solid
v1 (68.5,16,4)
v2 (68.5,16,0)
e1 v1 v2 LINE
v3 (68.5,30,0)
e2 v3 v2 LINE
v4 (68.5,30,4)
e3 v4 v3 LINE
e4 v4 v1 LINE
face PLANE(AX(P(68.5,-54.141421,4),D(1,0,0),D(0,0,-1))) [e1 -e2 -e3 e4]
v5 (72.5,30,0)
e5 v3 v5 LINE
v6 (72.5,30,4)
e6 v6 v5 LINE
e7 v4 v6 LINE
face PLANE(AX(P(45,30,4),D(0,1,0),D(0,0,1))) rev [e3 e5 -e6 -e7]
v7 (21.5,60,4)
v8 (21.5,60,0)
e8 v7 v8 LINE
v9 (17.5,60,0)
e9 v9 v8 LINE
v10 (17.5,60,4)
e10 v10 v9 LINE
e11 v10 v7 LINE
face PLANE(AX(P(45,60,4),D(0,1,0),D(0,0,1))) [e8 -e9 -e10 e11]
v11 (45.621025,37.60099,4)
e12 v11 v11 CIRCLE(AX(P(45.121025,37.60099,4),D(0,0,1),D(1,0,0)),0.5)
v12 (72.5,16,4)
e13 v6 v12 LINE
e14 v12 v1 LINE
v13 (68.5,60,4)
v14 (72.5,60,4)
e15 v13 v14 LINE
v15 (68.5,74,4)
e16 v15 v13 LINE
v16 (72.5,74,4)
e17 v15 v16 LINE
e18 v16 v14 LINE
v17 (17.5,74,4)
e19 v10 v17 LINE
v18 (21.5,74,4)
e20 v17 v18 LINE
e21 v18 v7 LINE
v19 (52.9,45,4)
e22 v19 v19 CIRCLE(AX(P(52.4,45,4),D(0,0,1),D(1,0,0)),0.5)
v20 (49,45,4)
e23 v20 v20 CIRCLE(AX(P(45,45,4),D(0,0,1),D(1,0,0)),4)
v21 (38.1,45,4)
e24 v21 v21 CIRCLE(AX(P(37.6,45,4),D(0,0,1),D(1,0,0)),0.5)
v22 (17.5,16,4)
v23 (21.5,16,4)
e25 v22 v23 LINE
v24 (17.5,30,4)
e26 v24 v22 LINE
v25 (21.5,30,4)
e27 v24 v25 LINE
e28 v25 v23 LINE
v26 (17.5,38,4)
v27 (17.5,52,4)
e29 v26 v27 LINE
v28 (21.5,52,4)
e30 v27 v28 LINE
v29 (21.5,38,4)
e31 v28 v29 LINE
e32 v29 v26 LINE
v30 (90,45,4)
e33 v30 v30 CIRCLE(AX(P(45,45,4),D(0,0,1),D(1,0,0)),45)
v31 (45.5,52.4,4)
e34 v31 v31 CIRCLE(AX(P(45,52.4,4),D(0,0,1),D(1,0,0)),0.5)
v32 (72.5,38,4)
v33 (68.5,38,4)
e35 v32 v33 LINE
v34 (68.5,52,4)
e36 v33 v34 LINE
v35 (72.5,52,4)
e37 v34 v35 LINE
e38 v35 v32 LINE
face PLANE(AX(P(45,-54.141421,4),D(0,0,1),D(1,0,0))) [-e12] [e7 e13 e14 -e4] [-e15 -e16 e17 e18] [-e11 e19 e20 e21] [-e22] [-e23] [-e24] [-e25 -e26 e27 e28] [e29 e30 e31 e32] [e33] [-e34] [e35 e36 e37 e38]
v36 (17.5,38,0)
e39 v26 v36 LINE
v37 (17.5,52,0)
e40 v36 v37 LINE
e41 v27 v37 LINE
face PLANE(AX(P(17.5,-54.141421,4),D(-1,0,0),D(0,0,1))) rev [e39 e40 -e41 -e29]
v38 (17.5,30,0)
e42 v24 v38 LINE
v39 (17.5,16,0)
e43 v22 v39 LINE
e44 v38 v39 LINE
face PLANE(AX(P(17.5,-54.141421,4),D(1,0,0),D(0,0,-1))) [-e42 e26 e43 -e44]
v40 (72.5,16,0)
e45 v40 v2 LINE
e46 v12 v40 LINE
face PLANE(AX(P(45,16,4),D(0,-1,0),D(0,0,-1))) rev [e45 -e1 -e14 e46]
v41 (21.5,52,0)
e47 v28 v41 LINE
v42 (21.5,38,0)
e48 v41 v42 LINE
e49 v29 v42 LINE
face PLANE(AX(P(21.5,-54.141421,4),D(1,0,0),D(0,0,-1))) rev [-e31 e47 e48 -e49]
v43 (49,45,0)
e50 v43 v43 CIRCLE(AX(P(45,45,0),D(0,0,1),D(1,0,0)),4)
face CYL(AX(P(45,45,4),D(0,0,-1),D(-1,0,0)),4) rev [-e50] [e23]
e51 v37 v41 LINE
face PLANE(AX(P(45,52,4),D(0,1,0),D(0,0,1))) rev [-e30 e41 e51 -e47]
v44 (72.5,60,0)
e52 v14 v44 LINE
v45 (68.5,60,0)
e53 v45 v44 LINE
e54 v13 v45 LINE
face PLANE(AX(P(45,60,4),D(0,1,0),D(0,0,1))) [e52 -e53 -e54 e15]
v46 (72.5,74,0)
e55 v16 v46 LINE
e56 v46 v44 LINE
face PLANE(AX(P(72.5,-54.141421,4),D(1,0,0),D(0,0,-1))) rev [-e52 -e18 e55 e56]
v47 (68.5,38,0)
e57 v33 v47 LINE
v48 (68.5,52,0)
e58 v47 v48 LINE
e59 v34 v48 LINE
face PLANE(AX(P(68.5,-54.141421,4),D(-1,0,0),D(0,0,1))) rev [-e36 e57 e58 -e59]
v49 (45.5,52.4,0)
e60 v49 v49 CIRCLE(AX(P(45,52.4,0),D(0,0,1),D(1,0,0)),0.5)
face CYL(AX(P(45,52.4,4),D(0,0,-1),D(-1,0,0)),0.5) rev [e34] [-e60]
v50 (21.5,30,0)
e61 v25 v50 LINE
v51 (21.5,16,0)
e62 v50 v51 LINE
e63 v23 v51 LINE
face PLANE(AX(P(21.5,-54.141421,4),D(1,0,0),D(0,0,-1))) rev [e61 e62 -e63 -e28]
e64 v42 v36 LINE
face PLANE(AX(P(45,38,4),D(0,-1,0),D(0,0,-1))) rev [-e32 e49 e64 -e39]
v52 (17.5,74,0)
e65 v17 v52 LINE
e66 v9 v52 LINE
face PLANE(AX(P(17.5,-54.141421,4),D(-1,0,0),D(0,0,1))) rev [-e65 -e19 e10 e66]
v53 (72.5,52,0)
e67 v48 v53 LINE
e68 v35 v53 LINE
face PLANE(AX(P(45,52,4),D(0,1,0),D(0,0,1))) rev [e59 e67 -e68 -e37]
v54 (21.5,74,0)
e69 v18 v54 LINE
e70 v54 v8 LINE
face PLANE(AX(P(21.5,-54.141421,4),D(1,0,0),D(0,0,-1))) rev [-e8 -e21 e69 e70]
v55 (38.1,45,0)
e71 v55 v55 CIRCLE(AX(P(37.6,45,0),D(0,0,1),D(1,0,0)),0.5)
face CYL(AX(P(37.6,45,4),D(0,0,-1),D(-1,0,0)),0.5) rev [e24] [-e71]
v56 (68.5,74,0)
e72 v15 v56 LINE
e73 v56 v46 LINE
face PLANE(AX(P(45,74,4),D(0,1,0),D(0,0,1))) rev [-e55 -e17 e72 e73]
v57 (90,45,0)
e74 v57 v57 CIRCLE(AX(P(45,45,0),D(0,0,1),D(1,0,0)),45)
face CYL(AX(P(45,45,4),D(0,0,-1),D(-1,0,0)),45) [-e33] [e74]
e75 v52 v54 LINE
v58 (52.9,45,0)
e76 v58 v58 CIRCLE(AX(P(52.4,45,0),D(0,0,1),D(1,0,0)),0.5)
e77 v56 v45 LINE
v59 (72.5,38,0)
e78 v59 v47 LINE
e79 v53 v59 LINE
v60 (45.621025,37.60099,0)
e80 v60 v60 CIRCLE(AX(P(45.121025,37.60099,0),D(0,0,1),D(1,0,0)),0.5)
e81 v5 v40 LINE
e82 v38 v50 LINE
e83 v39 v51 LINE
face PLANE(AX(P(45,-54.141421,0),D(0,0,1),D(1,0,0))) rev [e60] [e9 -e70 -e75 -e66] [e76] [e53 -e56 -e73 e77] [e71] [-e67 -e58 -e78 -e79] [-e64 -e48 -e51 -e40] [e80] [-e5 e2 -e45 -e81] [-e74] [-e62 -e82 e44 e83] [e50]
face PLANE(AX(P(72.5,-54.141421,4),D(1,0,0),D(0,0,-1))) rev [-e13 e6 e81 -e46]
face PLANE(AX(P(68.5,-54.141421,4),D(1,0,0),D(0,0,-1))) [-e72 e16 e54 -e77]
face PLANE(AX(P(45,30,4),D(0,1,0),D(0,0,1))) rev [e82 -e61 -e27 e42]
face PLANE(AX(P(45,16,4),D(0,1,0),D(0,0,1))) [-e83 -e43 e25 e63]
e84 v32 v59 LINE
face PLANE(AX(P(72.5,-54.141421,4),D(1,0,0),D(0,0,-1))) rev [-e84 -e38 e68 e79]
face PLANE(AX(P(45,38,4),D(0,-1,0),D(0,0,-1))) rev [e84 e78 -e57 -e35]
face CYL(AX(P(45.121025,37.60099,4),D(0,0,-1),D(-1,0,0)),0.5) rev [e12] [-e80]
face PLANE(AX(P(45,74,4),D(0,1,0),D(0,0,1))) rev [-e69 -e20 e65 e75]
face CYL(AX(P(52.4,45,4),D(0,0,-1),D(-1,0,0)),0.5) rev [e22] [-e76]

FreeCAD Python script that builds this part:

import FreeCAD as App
import Part
import Sketcher
from FreeCAD import Vector

doc = App.newDocument("Part")
params = doc.addObject("Spreadsheet::Sheet", "Params")
for row, (alias, value) in enumerate([
    ("sketch1_diameter", "90 mm"),
    ("sketch1_diameter2", "1 mm"),
    ("sketch1_diameter3", "8 mm"),
    ("sketch1_width", "4 mm"),
    ("sketch1_height", "14 mm"),
    ("pad1_length", "4 mm"),
], start=1):
    params.set(f"A{row}", alias)
    params.set(f"B{row}", "=" + value)
    params.setAlias(f"B{row}", alias)

body = doc.addObject("PartDesign::Body", "Body")

# Sketch on XY plane
sketch1 = body.newObject("Sketcher::SketchObject", "Sketch")
sketch1.AttachmentSupport = (doc.getObject("XY_Plane"), [""])
sketch1.MapMode = "FlatFace"
sketch1.addGeometry([
    Part.Circle(Vector(45, 45, 0), Vector(0, 0, 1), 45),  # 0
    Part.LineSegment(Vector(21.5, 16, 0), Vector(17.5, 16, 0)),  # 1
    Part.LineSegment(Vector(17.5, 16, 0), Vector(17.5, 30, 0)),  # 2
    Part.LineSegment(Vector(17.5, 30, 0), Vector(21.5, 30, 0)),  # 3
    Part.LineSegment(Vector(21.5, 30, 0), Vector(21.5, 16, 0)),  # 4
    Part.LineSegment(Vector(72.5, 16, 0), Vector(68.5, 16, 0)),  # 5
    Part.LineSegment(Vector(68.5, 16, 0), Vector(68.5, 30, 0)),  # 6
    Part.LineSegment(Vector(68.5, 30, 0), Vector(72.5, 30, 0)),  # 7
    Part.LineSegment(Vector(72.5, 30, 0), Vector(72.5, 16, 0)),  # 8
    Part.Circle(Vector(45.121025, 37.60099, 0), Vector(0, 0, 1), 0.5),  # 9
    Part.LineSegment(Vector(21.5, 38, 0), Vector(17.5, 38, 0)),  # 10
    Part.LineSegment(Vector(17.5, 38, 0), Vector(17.5, 52, 0)),  # 11
    Part.LineSegment(Vector(17.5, 52, 0), Vector(21.5, 52, 0)),  # 12
    Part.LineSegment(Vector(21.5, 52, 0), Vector(21.5, 38, 0)),  # 13
    Part.Circle(Vector(37.6, 45, 0), Vector(0, 0, 1), 0.5),  # 14
    Part.LineSegment(Vector(21.5, 60, 0), Vector(17.5, 60, 0)),  # 15
    Part.LineSegment(Vector(17.5, 60, 0), Vector(17.5, 74, 0)),  # 16
    Part.LineSegment(Vector(17.5, 74, 0), Vector(21.5, 74, 0)),  # 17
    Part.LineSegment(Vector(21.5, 74, 0), Vector(21.5, 60, 0)),  # 18
    Part.Circle(Vector(45, 45, 0), Vector(0, 0, 1), 4),  # 19
    Part.Circle(Vector(52.4, 45, 0), Vector(0, 0, 1), 0.5),  # 20
    Part.Circle(Vector(45, 52.4, 0), Vector(0, 0, 1), 0.5),  # 21
    Part.LineSegment(Vector(72.5, 38, 0), Vector(68.5, 38, 0)),  # 22
    Part.LineSegment(Vector(68.5, 38, 0), Vector(68.5, 52, 0)),  # 23
    Part.LineSegment(Vector(68.5, 52, 0), Vector(72.5, 52, 0)),  # 24
    Part.LineSegment(Vector(72.5, 52, 0), Vector(72.5, 38, 0)),  # 25
    Part.LineSegment(Vector(72.5, 60, 0), Vector(68.5, 60, 0)),  # 26
    Part.LineSegment(Vector(68.5, 60, 0), Vector(68.5, 74, 0)),  # 27
    Part.LineSegment(Vector(68.5, 74, 0), Vector(72.5, 74, 0)),  # 28
    Part.LineSegment(Vector(72.5, 74, 0), Vector(72.5, 60, 0)),  # 29
], False)
sketch1.addConstraint([
    Sketcher.Constraint("Coincident", 1, 2, 2, 1),
    Sketcher.Constraint("Coincident", 2, 2, 3, 1),
    Sketcher.Constraint("Coincident", 3, 2, 4, 1),
    Sketcher.Constraint("Coincident", 4, 2, 1, 1),
    Sketcher.Constraint("Coincident", 5, 2, 6, 1),
    Sketcher.Constraint("Coincident", 6, 2, 7, 1),
    Sketcher.Constraint("Coincident", 7, 2, 8, 1),
    Sketcher.Constraint("Coincident", 8, 2, 5, 1),
    Sketcher.Constraint("Coincident", 10, 2, 11, 1),
    Sketcher.Constraint("Coincident", 11, 2, 12, 1),
    Sketcher.Constraint("Coincident", 12, 2, 13, 1),
    Sketcher.Constraint("Coincident", 13, 2, 10, 1),
    Sketcher.Constraint("Coincident", 15, 2, 16, 1),
    Sketcher.Constraint("Coincident", 16, 2, 17, 1),
    Sketcher.Constraint("Coincident", 17, 2, 18, 1),
    Sketcher.Constraint("Coincident", 18, 2, 15, 1),
    Sketcher.Constraint("Coincident", 22, 2, 23, 1),
    Sketcher.Constraint("Coincident", 23, 2, 24, 1),
    Sketcher.Constraint("Coincident", 24, 2, 25, 1),
    Sketcher.Constraint("Coincident", 25, 2, 22, 1),
    Sketcher.Constraint("Coincident", 26, 2, 27, 1),
    Sketcher.Constraint("Coincident", 27, 2, 28, 1),
    Sketcher.Constraint("Coincident", 28, 2, 29, 1),
    Sketcher.Constraint("Coincident", 29, 2, 26, 1),
    Sketcher.Constraint("Horizontal", 1),
    Sketcher.Constraint("Vertical", 2),
    Sketcher.Constraint("Horizontal", 3),
    Sketcher.Constraint("Vertical", 4),
    Sketcher.Constraint("Horizontal", 5),
    Sketcher.Constraint("Vertical", 6),
    Sketcher.Constraint("Horizontal", 7),
    Sketcher.Constraint("Vertical", 8),
    Sketcher.Constraint("Horizontal", 10),
    Sketcher.Constraint("Vertical", 11),
    Sketcher.Constraint("Horizontal", 12),
    Sketcher.Constraint("Vertical", 13),
    Sketcher.Constraint("Horizontal", 15),
    Sketcher.Constraint("Vertical", 16),
    Sketcher.Constraint("Horizontal", 17),
    Sketcher.Constraint("Vertical", 18),
    Sketcher.Constraint("Horizontal", 22),
    Sketcher.Constraint("Vertical", 23),
    Sketcher.Constraint("Horizontal", 24),
    Sketcher.Constraint("Vertical", 25),
    Sketcher.Constraint("Horizontal", 26),
    Sketcher.Constraint("Vertical", 27),
    Sketcher.Constraint("Horizontal", 28),
    Sketcher.Constraint("Vertical", 29),
    Sketcher.Constraint("Coincident", 19, 3, 0, 3),
    Sketcher.Constraint("Equal", 9, 14),
    Sketcher.Constraint("Equal", 14, 20),
    Sketcher.Constraint("Equal", 20, 21),
    Sketcher.Constraint("Horizontal", 0, 3, 14, 3),
    Sketcher.Constraint("Horizontal", 19, 3, 20, 3),
    Sketcher.Constraint("Horizontal", 4, 2, 5, 2),
    Sketcher.Constraint("Horizontal", 3, 2, 6, 2),
    Sketcher.Constraint("Horizontal", 13, 2, 22, 2),
    Sketcher.Constraint("Horizontal", 12, 2, 23, 2),
    Sketcher.Constraint("Horizontal", 18, 2, 26, 2),
    Sketcher.Constraint("Horizontal", 17, 2, 27, 2),
    Sketcher.Constraint("Vertical", 19, 3, 21, 3),
    Sketcher.Constraint("Vertical", 2, 2, 10, 2),
    Sketcher.Constraint("Vertical", 4, 2, 12, 2),
    Sketcher.Constraint("Vertical", 11, 2, 15, 2),
    Sketcher.Constraint("Vertical", 13, 2, 17, 2),
    Sketcher.Constraint("Vertical", 6, 2, 22, 2),
    Sketcher.Constraint("Vertical", 8, 2, 24, 2),
    Sketcher.Constraint("Vertical", 23, 2, 26, 2),
    Sketcher.Constraint("Vertical", 25, 2, 28, 2),
    Sketcher.Constraint("Equal", 3, 5),
    Sketcher.Constraint("Equal", 8, 11),
    Sketcher.Constraint("Equal", 13, 16),
    Sketcher.Constraint("Diameter", 0, 90.0),
    Sketcher.Constraint("Diameter", 9, 1.0),
    Sketcher.Constraint("Diameter", 19, 8.0),
    Sketcher.Constraint("DistanceX", 1, 2, 1, 1, 4.0),
    Sketcher.Constraint("DistanceY", 2, 1, 2, 2, 14.0),
    Sketcher.Constraint("DistanceX", -1, 1, 0, 3, 45.0),
    Sketcher.Constraint("DistanceY", -1, 1, 0, 3, 45.0),
    Sketcher.Constraint("DistanceY", -1, 1, 1, 2, 16.0),
    Sketcher.Constraint("DistanceY", -1, 1, 10, 2, 38.0),
    Sketcher.Constraint("DistanceY", -1, 1, 15, 2, 60.0),
    Sketcher.Constraint("DistanceX", -1, 1, 14, 3, 37.6),
    Sketcher.Constraint("DistanceX", -1, 1, 20, 3, 52.4),
    Sketcher.Constraint("DistanceY", -1, 1, 21, 3, 52.4),
    Sketcher.Constraint("DistanceX", -1, 1, 1, 2, 17.5),
    Sketcher.Constraint("DistanceX", -1, 1, 5, 2, 68.5),
    Sketcher.Constraint("DistanceY", -1, 1, 9, 3, 37.60099),
    Sketcher.Constraint("DistanceX", -1, 1, 9, 3, 45.121025),
])
sketch1.setExpression("Constraints[72]", "Params.sketch1_diameter")
sketch1.setExpression("Constraints[73]", "Params.sketch1_diameter2")
sketch1.setExpression("Constraints[74]", "Params.sketch1_diameter3")
sketch1.setExpression("Constraints[75]", "Params.sketch1_width")
sketch1.setExpression("Constraints[76]", "Params.sketch1_height")
pad1 = body.newObject("PartDesign::Pad", "Pad")
pad1.Profile = sketch1
pad1.setExpression("Length", "Params.pad1_length")

doc.recompute()
